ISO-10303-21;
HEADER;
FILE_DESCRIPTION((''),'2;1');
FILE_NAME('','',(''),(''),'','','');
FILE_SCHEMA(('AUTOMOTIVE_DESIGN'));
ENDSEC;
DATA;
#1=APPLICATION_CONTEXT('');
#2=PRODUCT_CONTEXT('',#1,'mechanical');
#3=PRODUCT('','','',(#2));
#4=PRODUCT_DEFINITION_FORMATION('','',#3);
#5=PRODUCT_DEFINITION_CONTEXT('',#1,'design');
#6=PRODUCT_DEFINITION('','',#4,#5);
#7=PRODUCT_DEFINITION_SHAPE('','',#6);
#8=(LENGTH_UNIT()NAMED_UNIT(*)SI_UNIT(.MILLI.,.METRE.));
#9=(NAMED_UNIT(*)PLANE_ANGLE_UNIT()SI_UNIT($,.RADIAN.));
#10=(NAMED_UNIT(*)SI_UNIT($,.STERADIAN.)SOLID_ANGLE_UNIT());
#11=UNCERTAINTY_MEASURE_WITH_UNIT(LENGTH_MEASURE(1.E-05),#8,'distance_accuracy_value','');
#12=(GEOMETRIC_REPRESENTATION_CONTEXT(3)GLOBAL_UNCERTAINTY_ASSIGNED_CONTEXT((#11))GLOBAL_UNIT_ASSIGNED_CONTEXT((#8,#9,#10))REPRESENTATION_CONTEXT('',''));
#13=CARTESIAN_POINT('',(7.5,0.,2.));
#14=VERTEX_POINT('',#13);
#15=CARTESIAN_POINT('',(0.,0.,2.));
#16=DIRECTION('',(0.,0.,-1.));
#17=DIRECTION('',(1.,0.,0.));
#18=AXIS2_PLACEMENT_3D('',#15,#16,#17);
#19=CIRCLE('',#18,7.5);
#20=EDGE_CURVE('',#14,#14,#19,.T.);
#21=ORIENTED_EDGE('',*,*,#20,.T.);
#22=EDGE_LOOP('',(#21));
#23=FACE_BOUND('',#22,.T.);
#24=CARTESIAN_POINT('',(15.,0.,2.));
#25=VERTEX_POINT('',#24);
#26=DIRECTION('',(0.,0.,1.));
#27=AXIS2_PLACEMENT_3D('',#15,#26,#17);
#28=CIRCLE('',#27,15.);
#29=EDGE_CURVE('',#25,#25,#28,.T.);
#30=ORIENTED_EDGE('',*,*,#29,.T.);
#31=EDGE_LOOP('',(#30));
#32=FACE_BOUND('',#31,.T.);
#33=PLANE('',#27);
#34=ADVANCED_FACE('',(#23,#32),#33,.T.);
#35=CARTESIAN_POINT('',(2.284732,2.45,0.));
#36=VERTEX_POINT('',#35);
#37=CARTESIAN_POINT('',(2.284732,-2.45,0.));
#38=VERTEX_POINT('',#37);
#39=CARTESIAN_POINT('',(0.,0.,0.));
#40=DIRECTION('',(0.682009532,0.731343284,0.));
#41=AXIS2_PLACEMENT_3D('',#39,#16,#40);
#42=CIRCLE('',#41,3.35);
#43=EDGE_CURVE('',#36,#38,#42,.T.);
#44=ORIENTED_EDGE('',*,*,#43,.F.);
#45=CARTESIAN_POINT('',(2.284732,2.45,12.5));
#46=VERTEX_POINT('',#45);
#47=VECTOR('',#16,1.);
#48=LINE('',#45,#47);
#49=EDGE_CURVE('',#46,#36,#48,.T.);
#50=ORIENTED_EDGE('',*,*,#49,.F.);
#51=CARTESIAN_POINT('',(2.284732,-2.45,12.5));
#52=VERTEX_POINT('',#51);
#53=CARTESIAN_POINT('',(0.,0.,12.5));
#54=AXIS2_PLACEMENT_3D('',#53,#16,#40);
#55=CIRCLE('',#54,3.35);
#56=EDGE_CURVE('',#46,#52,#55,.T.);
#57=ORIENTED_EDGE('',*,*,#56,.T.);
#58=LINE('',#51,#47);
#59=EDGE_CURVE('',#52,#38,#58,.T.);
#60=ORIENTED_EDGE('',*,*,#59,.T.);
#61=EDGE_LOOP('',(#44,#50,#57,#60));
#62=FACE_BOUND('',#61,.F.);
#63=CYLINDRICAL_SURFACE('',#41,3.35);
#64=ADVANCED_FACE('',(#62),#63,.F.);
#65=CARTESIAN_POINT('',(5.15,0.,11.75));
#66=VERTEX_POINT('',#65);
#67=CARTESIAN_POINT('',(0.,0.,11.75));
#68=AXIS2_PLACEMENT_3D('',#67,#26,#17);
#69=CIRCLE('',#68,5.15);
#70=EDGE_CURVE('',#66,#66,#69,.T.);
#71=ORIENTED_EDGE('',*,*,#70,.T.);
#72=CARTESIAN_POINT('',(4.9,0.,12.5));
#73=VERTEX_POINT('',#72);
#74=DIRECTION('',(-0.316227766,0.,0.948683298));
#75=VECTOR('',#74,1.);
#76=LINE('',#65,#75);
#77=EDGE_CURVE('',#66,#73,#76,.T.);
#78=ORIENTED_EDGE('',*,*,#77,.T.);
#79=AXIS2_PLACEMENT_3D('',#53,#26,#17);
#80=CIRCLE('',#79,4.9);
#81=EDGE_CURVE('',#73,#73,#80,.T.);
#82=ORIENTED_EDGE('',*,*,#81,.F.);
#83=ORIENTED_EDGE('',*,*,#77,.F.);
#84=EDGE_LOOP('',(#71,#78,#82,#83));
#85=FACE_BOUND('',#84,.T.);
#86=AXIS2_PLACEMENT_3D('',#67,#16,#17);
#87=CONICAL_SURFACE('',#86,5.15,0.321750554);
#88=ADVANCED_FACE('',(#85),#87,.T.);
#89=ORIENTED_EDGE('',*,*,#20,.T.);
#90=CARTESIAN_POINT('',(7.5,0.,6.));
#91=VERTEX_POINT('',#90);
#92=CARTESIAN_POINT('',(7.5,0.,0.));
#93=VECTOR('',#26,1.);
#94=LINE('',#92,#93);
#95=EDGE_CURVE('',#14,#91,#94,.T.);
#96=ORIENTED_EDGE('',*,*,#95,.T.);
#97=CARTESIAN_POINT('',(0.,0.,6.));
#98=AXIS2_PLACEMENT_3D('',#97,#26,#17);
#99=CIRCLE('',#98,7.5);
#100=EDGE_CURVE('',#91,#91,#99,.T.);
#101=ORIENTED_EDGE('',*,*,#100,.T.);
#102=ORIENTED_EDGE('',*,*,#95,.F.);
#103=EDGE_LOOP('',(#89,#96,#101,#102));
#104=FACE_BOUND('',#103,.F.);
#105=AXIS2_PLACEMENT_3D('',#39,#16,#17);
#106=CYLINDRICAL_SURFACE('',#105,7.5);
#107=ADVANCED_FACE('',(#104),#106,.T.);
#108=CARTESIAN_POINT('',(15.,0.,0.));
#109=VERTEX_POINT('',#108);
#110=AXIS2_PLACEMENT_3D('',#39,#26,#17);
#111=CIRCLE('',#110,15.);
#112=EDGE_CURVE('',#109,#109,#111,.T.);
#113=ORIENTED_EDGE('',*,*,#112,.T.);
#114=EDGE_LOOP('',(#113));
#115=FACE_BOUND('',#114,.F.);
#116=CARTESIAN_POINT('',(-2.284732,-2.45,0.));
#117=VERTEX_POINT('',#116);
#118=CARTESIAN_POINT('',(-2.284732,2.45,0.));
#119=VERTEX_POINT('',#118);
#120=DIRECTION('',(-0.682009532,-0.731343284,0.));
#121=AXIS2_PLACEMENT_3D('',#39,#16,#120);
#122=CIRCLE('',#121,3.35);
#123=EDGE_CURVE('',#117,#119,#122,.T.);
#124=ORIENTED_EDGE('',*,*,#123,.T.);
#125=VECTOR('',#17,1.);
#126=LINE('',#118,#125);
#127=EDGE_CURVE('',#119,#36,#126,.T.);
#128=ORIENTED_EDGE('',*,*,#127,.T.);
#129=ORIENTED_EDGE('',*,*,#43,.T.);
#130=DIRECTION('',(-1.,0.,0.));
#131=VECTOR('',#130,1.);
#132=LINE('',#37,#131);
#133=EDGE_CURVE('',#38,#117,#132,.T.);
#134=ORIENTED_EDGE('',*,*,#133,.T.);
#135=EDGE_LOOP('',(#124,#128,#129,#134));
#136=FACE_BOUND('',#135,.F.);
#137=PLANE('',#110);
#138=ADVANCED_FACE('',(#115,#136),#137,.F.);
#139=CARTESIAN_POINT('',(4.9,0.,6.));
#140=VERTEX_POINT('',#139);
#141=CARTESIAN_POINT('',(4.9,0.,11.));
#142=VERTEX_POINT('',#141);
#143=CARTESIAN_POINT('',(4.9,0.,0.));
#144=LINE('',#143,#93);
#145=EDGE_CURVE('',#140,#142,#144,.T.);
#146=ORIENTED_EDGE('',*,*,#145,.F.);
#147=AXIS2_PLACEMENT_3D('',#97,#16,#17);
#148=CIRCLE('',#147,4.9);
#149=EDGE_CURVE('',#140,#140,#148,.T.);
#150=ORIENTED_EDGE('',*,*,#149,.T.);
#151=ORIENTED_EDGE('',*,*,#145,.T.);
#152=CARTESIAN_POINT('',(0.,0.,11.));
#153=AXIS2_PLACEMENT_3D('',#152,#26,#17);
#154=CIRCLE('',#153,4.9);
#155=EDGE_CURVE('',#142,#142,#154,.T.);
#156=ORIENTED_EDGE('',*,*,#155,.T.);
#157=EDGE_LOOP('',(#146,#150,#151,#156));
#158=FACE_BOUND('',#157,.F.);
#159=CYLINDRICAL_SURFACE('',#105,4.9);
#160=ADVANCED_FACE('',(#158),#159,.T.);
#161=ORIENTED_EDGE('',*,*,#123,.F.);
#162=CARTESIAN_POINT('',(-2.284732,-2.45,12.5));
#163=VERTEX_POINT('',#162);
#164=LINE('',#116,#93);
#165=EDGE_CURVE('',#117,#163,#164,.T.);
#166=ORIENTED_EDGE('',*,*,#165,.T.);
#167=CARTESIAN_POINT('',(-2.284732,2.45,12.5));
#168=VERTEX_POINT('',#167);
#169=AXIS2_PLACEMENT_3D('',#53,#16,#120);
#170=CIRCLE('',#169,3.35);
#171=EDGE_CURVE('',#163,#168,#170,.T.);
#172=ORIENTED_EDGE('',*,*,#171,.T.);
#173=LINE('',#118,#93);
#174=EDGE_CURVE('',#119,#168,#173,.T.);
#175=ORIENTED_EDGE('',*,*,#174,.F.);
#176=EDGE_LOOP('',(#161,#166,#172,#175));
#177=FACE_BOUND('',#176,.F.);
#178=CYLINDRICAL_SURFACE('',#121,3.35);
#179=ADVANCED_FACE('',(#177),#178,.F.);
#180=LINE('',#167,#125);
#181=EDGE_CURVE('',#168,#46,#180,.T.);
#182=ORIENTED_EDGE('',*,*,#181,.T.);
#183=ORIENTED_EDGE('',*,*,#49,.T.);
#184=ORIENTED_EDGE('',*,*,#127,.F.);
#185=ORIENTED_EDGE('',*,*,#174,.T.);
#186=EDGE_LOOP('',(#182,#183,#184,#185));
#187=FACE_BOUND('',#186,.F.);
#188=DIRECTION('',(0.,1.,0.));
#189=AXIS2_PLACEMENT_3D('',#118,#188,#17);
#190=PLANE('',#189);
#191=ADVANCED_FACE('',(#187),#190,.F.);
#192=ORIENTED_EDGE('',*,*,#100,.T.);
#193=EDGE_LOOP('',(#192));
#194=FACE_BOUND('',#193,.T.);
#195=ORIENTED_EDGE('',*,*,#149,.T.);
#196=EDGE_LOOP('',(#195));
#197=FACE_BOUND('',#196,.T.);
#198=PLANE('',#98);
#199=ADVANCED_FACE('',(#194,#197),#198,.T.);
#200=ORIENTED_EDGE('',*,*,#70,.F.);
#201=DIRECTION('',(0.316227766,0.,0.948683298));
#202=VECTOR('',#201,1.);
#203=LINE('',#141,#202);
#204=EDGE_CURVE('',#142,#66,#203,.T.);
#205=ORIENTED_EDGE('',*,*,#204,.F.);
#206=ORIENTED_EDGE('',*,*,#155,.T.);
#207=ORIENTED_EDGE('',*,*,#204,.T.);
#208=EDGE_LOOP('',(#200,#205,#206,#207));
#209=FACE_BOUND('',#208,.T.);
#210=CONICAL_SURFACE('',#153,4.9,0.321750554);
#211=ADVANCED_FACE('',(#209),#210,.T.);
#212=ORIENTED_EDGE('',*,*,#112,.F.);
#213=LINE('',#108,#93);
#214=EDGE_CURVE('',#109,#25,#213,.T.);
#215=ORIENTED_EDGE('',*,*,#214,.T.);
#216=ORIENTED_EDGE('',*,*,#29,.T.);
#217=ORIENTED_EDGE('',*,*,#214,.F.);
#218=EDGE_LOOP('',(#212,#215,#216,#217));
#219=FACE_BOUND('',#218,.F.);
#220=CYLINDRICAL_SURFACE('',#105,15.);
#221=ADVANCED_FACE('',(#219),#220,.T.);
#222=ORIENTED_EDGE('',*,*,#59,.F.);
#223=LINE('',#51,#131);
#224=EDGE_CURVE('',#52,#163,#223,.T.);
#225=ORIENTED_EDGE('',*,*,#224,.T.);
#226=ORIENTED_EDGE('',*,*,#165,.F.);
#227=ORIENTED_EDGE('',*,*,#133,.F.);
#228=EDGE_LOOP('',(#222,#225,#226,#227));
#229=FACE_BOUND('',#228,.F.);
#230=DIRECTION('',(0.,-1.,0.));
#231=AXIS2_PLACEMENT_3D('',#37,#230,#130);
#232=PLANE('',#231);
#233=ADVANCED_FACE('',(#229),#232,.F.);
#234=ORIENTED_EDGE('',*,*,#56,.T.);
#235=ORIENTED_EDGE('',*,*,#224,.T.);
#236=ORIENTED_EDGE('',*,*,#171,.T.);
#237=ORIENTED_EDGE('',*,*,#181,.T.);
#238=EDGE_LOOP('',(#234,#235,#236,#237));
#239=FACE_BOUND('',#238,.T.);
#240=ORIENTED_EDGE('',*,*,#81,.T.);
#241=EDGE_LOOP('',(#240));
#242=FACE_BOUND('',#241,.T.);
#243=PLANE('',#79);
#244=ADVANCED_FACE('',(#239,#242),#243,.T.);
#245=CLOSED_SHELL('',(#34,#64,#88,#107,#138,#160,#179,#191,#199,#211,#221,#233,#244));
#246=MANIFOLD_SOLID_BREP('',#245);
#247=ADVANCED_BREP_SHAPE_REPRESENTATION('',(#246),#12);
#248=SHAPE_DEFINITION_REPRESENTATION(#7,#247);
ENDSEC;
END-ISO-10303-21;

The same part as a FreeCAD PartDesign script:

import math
import FreeCAD as App
import Part
import Sketcher

doc = App.newDocument("Part")
body = doc.addObject("PartDesign::Body", "Body")

# Sketch on XY plane
sketch1 = body.newObject("Sketcher::SketchObject", "Sketch")
sketch1.AttachmentSupport = (doc.getObject("XY_Plane"), [""])
sketch1.MapMode = "FlatFace"
sketch1.addGeometry([
    Part.Circle(App.Vector(0, 0, 0), App.Vector(0, 0, 1), 15),  # 0
    Part.LineSegment(App.Vector(2.3, -2.5, 0), App.Vector(-2.3, -2.5, 0)),  # 1
    Part.ArcOfCircle(Part.Circle(App.Vector(0, 0, 0), App.Vector(0, 0, 1), 3.4), math.radians(133), math.radians(227)),  # 2
    Part.LineSegment(App.Vector(-2.3, 2.5, 0), App.Vector(2.3, 2.5, 0)),  # 3
    Part.ArcOfCircle(Part.Circle(App.Vector(0, 0, 0), App.Vector(0, 0, 1), 3.4), math.radians(-47), math.radians(47)),  # 4
], False)
sketch1.addConstraint([
    Sketcher.Constraint("Coincident", 1, 2, 2, 2),
    Sketcher.Constraint("Coincident", 2, 1, 3, 1),
    Sketcher.Constraint("Coincident", 3, 2, 4, 2),
    Sketcher.Constraint("Coincident", 4, 1, 1, 1),
    Sketcher.Constraint("Horizontal", 1),
    Sketcher.Constraint("Horizontal", 3),
    Sketcher.Constraint("Coincident", 0, 3, -1, 1),
    Sketcher.Constraint("Coincident", 2, 3, -1, 1),
    Sketcher.Constraint("Coincident", 4, 3, -1, 1),
    Sketcher.Constraint("Equal", 2, 4),
    Sketcher.Constraint("Vertical", 1, 2, 2, 1),
    Sketcher.Constraint("Diameter", 0, 30.0),
    Sketcher.Constraint("Radius", 2, 3.35),
    Sketcher.Constraint("DistanceY", 1, 2, 2, 1, 4.9),
])
pad1 = body.newObject("PartDesign::Pad", "Pad")
pad1.Profile = sketch1
pad1.Length = 2

# Sketch on XY plane
sketch2 = body.newObject("Sketcher::SketchObject", "Sketch001")
sketch2.AttachmentSupport = (doc.getObject("XY_Plane"), [""])
sketch2.MapMode = "FlatFace"
sketch2.addGeometry([
    Part.Circle(App.Vector(0, 0, 0), App.Vector(0, 0, 1), 7.5),  # 0
    Part.LineSegment(App.Vector(2.3, -2.5, 0), App.Vector(-2.3, -2.5, 0)),  # 1
    Part.ArcOfCircle(Part.Circle(App.Vector(0, 0, 0), App.Vector(0, 0, 1), 3.4), math.radians(133), math.radians(227)),  # 2
    Part.LineSegment(App.Vector(-2.3, 2.5, 0), App.Vector(2.3, 2.5, 0)),  # 3
    Part.ArcOfCircle(Part.Circle(App.Vector(0, 0, 0), App.Vector(0, 0, 1), 3.4), math.radians(-47), math.radians(47)),  # 4
], False)
sketch2.addConstraint([
    Sketcher.Constraint("Coincident", 1, 2, 2, 2),
    Sketcher.Constraint("Coincident", 2, 1, 3, 1),
    Sketcher.Constraint("Coincident", 3, 2, 4, 2),
    Sketcher.Constraint("Coincident", 4, 1, 1, 1),
    Sketcher.Constraint("Horizontal", 1),
    Sketcher.Constraint("Horizontal", 3),
    Sketcher.Constraint("Coincident", 0, 3, -1, 1),
    Sketcher.Constraint("Coincident", 2, 3, -1, 1),
    Sketcher.Constraint("Coincident", 4, 3, -1, 1),
    Sketcher.Constraint("Equal", 2, 4),
    Sketcher.Constraint("Vertical", 1, 2, 2, 1),
    Sketcher.Constraint("Diameter", 0, 15.0),
    Sketcher.Constraint("Radius", 2, 3.35),
    Sketcher.Constraint("DistanceY", 1, 2, 2, 1, 4.9),
])
pad2 = body.newObject("PartDesign::Pad", "Pad001")
pad2.Profile = sketch2
pad2.Length = 6

# Sketch on XY plane
sketch3 = body.newObject("Sketcher::SketchObject", "Sketch002")
sketch3.AttachmentSupport = (doc.getObject("XY_Plane"), [""])
sketch3.MapMode = "FlatFace"
sketch3.addGeometry([
    Part.Circle(App.Vector(0, 0, 0), App.Vector(0, 0, 1), 4.9),  # 0
    Part.LineSegment(App.Vector(2.3, -2.5, 0), App.Vector(-2.3, -2.5, 0)),  # 1
    Part.ArcOfCircle(Part.Circle(App.Vector(0, 0, 0), App.Vector(0, 0, 1), 3.4), math.radians(133), math.radians(227)),  # 2
    Part.LineSegment(App.Vector(-2.3, 2.5, 0), App.Vector(2.3, 2.5, 0)),  # 3
    Part.ArcOfCircle(Part.Circle(App.Vector(0, 0, 0), App.Vector(0, 0, 1), 3.4), math.radians(-47), math.radians(47)),  # 4
], False)
sketch3.addConstraint([
    Sketcher.Constraint("Coincident", 1, 2, 2, 2),
    Sketcher.Constraint("Coincident", 2, 1, 3, 1),
    Sketcher.Constraint("Coincident", 3, 2, 4, 2),
    Sketcher.Constraint("Coincident", 4, 1, 1, 1),
    Sketcher.Constraint("Horizontal", 1),
    Sketcher.Constraint("Horizontal", 3),
    Sketcher.Constraint("Coincident", 0, 3, -1, 1),
    Sketcher.Constraint("Coincident", 2, 3, -1, 1),
    Sketcher.Constraint("Coincident", 4, 3, -1, 1),
    Sketcher.Constraint("Equal", 2, 4),
    Sketcher.Constraint("Vertical", 1, 2, 2, 1),
    Sketcher.Constraint("Diameter", 0, 9.8),
    Sketcher.Constraint("Radius", 2, 3.35),
    Sketcher.Constraint("DistanceY", 1, 2, 2, 1, 4.9),
])
pad3 = body.newObject("PartDesign::Pad", "Pad002")
pad3.Profile = sketch3
pad3.Length = 12.5

# Sketch on XZ plane
sketch4 = body.newObject("Sketcher::SketchObject", "Sketch003")
sketch4.AttachmentSupport = (doc.getObject("XZ_Plane"), [""])
sketch4.MapMode = "FlatFace"
sketch4.addGeometry([
    Part.LineSegment(App.Vector(5.2, 11.8, 0), App.Vector(4.9, 12.5, 0)),
    Part.LineSegment(App.Vector(4.9, 12.5, 0), App.Vector(4.9, 11, 0)),
    Part.LineSegment(App.Vector(4.9, 11, 0), App.Vector(5.2, 11.8, 0)),
], False)
sketch4.addConstraint([
    Sketcher.Constraint("Coincident", 0, 2, 1, 1),
    Sketcher.Constraint("Coincident", 1, 2, 2, 1),
    Sketcher.Constraint("Coincident", 2, 2, 0, 1),
    Sketcher.Constraint("Vertical", 1),
    Sketcher.Constraint("Equal", 0, 2),
    Sketcher.Constraint("DistanceY", 1, 2, 1, 1, 1.5),
    Sketcher.Constraint("DistanceY", -1, 1, 1, 2, 11.0),
    Sketcher.Constraint("DistanceX", -1, 1, 0, 2, 4.9),
    Sketcher.Constraint("DistanceX", -1, 1, 2, 2, 5.15),
])
revolution = body.newObject("PartDesign::Revolution", "Revolution")
revolution.Profile = sketch4
revolution.ReferenceAxis = (sketch4, ["V_Axis"])
revolution.Angle = 360

doc.recompute()
